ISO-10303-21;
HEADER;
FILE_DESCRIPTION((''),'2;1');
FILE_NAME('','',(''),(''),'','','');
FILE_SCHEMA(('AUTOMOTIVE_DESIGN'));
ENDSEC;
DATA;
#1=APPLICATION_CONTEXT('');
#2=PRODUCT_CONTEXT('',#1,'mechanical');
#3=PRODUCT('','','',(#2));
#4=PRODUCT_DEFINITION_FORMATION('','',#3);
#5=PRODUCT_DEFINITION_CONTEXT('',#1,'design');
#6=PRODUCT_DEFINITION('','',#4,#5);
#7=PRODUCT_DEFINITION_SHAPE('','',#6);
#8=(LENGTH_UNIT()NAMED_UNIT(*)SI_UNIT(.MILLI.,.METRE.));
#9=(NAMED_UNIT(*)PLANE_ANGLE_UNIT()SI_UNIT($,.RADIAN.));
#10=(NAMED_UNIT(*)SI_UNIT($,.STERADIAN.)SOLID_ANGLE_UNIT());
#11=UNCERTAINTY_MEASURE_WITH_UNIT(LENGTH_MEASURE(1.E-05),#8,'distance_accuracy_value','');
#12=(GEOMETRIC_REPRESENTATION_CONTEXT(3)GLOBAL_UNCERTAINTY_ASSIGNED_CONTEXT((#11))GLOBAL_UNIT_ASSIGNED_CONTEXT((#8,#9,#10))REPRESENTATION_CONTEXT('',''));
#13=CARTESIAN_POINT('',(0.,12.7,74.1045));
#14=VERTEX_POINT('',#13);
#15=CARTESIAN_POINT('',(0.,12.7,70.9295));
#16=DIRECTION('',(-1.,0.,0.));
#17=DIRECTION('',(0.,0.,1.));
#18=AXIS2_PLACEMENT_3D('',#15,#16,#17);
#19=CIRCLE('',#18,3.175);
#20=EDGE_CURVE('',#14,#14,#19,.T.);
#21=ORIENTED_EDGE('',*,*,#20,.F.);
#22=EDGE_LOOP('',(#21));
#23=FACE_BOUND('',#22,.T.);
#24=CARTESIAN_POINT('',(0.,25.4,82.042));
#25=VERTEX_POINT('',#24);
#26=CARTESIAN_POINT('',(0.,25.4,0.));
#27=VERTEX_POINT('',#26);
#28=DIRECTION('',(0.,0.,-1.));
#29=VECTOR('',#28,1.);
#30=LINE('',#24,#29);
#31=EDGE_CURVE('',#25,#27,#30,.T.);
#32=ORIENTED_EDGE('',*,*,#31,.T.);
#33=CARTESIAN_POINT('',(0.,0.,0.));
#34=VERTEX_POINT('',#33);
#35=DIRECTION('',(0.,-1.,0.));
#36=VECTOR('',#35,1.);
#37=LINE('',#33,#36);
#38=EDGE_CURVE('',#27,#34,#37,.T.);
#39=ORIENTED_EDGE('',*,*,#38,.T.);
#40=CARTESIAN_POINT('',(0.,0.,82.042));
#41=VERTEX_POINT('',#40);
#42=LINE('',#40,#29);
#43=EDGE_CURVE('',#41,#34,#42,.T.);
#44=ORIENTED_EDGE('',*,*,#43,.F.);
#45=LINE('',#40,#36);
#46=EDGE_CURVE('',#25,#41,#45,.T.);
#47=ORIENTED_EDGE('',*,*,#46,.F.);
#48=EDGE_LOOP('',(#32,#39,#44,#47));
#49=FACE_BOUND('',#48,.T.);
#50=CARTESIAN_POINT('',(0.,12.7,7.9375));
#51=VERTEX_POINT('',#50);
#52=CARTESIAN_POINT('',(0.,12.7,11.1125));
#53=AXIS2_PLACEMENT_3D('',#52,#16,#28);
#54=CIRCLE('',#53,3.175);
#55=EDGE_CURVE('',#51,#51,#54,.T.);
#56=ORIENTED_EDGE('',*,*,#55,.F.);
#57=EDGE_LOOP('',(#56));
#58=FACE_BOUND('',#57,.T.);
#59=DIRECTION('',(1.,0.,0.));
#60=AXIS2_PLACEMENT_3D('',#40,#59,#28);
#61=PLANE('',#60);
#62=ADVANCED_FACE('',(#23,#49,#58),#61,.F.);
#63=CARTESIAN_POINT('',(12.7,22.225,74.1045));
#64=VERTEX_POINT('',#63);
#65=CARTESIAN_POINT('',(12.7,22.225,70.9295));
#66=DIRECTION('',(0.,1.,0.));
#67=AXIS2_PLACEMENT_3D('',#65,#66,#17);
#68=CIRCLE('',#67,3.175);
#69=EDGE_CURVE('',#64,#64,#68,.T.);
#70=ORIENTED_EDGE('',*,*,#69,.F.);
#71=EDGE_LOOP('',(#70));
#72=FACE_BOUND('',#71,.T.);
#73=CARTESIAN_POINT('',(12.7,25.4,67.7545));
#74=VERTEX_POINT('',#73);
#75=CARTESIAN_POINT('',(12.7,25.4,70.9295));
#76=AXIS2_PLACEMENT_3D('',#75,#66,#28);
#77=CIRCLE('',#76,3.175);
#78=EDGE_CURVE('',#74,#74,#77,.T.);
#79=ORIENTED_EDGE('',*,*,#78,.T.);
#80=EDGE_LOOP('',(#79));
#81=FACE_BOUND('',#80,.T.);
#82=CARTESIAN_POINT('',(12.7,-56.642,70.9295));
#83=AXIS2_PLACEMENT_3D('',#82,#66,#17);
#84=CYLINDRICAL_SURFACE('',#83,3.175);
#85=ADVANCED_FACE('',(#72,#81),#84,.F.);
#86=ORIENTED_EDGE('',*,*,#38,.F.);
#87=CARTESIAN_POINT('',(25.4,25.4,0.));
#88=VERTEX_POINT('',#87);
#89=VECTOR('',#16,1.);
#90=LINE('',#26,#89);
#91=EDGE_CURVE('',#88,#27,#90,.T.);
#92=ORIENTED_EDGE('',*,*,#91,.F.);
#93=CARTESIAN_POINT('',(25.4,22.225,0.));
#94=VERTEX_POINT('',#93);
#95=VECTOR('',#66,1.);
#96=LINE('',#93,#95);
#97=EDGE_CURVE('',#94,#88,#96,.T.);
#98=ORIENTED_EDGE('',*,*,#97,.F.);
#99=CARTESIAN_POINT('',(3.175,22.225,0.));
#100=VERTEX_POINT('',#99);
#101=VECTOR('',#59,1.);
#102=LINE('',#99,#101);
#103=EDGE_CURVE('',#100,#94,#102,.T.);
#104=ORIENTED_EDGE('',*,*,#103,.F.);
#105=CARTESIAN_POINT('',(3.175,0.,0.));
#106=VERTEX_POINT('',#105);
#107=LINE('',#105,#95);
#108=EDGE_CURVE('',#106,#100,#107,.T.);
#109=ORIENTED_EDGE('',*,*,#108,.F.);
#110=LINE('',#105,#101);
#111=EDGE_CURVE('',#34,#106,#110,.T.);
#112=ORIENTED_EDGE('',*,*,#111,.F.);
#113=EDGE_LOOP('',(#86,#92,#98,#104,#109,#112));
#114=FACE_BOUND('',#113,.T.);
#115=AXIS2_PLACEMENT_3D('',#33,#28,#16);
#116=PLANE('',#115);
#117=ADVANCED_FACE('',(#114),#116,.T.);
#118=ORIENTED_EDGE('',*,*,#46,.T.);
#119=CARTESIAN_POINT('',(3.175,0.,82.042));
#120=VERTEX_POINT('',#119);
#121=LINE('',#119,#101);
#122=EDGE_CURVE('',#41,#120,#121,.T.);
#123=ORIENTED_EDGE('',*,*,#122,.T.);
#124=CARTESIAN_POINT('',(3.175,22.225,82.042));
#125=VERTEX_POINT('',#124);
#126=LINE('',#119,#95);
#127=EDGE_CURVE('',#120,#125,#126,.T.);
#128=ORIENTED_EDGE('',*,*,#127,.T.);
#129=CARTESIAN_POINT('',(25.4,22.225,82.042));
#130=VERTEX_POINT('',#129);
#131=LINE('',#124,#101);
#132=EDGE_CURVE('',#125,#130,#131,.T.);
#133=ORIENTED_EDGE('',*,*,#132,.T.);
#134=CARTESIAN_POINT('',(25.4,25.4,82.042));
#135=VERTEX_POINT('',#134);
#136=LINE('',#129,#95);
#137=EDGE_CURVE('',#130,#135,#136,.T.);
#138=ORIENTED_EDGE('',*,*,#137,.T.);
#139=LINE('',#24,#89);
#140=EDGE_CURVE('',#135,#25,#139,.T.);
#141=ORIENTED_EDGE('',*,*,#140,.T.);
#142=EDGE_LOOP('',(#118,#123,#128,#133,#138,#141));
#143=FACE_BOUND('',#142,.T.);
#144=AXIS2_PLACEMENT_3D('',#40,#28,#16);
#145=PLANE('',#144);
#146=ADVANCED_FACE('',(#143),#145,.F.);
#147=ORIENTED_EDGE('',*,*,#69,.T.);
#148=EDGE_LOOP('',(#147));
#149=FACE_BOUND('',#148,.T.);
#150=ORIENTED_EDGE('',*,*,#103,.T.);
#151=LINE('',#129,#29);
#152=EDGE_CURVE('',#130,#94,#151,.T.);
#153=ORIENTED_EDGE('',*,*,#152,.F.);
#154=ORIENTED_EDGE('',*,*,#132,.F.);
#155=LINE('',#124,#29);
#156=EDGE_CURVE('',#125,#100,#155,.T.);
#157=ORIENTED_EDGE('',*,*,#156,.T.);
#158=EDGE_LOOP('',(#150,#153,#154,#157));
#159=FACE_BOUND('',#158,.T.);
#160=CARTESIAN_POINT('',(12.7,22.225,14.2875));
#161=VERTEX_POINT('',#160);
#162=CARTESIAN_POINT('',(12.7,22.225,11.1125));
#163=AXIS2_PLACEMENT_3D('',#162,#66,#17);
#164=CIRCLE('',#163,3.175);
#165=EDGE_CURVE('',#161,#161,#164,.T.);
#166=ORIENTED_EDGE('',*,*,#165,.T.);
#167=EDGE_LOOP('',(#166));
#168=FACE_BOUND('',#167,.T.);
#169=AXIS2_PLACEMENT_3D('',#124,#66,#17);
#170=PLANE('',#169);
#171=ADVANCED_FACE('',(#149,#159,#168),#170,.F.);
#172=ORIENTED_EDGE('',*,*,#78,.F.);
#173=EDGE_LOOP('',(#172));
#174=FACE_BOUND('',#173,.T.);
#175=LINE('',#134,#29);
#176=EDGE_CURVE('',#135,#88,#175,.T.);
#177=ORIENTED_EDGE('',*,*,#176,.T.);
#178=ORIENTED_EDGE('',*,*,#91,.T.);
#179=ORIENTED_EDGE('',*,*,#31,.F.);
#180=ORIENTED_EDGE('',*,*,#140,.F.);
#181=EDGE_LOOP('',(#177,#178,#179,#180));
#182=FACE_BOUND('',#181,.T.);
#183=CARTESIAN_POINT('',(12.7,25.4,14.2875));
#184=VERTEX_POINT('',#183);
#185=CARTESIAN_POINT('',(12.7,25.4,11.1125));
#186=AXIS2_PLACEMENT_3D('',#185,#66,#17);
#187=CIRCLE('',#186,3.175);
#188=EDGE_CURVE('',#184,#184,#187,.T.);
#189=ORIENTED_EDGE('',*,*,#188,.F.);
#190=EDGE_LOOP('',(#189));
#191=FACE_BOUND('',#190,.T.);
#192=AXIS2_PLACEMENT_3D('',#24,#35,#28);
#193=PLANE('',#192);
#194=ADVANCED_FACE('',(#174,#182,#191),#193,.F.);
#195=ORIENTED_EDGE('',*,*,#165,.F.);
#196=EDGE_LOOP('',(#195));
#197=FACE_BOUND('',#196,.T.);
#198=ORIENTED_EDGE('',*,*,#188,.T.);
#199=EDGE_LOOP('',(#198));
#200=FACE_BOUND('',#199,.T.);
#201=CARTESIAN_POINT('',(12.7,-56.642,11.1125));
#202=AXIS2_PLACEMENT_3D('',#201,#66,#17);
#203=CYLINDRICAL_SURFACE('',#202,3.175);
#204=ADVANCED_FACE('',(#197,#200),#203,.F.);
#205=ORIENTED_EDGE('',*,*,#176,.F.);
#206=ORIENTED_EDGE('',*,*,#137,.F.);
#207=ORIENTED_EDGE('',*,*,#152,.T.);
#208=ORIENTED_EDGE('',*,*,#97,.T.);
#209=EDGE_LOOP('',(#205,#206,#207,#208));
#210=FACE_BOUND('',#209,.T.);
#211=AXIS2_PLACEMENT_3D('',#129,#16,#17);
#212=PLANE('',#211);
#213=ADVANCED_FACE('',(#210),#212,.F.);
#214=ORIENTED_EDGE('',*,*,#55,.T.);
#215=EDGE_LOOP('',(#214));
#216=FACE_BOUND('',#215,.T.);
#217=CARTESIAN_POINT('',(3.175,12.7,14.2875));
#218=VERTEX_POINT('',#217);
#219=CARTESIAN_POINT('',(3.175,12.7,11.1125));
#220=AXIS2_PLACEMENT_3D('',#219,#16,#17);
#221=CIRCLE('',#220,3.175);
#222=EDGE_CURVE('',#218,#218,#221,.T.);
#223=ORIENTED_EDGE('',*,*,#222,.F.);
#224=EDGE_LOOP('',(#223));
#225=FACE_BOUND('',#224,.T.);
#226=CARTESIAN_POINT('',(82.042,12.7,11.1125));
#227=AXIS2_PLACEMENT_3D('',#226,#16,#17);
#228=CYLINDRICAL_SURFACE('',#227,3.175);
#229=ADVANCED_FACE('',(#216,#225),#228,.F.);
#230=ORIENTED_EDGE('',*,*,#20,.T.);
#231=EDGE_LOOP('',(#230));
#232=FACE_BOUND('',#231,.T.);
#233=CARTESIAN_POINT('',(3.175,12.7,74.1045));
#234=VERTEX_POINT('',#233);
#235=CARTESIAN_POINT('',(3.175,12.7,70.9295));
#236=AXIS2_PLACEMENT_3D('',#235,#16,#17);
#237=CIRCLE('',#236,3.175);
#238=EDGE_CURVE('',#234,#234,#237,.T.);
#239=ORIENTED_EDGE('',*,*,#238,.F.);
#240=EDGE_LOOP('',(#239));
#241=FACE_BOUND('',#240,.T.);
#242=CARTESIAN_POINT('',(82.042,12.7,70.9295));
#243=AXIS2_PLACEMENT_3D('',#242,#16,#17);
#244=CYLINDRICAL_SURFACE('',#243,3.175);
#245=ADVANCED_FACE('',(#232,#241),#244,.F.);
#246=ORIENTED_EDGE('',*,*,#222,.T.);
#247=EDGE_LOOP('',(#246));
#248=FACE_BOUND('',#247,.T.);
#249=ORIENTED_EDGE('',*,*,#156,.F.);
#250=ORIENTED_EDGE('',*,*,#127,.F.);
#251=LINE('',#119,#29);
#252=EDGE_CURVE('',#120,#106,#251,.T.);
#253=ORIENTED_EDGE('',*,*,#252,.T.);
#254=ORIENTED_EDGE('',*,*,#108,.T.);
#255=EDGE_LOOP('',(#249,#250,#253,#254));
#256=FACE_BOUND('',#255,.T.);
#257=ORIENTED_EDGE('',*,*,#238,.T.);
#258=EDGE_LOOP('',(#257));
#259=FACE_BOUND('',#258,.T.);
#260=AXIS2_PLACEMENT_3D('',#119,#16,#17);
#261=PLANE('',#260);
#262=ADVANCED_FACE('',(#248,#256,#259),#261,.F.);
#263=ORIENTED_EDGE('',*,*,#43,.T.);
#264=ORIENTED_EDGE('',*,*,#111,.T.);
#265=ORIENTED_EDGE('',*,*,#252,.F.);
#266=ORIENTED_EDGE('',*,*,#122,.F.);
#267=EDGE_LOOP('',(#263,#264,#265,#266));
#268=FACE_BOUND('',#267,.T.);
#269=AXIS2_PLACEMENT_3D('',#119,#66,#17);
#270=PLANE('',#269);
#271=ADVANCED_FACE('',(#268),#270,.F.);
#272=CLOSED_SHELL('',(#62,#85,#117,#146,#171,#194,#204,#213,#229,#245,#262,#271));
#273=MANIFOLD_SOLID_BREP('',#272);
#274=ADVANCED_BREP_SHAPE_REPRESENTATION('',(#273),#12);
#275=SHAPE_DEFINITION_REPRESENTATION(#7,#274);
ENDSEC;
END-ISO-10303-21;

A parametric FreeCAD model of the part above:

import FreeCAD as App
import Part
import Sketcher
from FreeCAD import Vector
Q = App.Units.Quantity


def add_polygon(sketch, points):
    """Adds a closed chain of lines whose ends are joined by coincident constraints."""
    first, n = sketch.GeometryCount, len(points)
    for a, b in zip(points, points[1:] + points[:1]):
        sketch.addGeometry(Part.LineSegment(App.Vector(*a, 0), App.Vector(*b, 0)), False)
    for i in range(n):
        sketch.addConstraint(Sketcher.Constraint("Coincident", first + i, 2, first + (i + 1) % n, 1))

doc = App.newDocument("Part")
body = doc.addObject("PartDesign::Body", "Body")

# Sketch on XY plane
sketch1 = doc.addObject("Sketcher::SketchObject", "Sketch")
body.addObject(sketch1)
sketch1.AttachmentSupport = (doc.XY_Plane, [""])
sketch1.MapMode = "FlatFace"
add_polygon(sketch1, [(0, 25.4), (0, 0), (3.2, 0), (3.2, 22.2), (25.4, 22.2), (25.4, 25.4)])  # lines 0-5
sketch1.addConstraint([
    Sketcher.Constraint("Vertical", 0),
    Sketcher.Constraint("Horizontal", 1),
    Sketcher.Constraint("Vertical", 2),
    Sketcher.Constraint("Horizontal", 3),
    Sketcher.Constraint("Vertical", 4),
    Sketcher.Constraint("Horizontal", 5),
    Sketcher.Constraint("Coincident", 0, 2, -1, 1),
    Sketcher.Constraint("Equal", 5, 0),
    Sketcher.Constraint("Equal", 3, 2),
    Sketcher.Constraint("DistanceX", 5, 2, 5, 1, Q("1 in")),
    Sketcher.Constraint("DistanceX", 1, 1, 1, 2, Q("0.125 in")),
])
pad1 = doc.addObject("PartDesign::Pad", "Pad")
body.addObject(pad1)
pad1.Profile = sketch1
pad1.Length = Q("3.23 in")

# Sketch on YZ plane
sketch2 = doc.addObject("Sketcher::SketchObject", "Sketch001")
body.addObject(sketch2)
sketch2.AttachmentSupport = (doc.YZ_Plane, [""])
sketch2.MapMode = "FlatFace"
sketch2.addGeometry([
    Part.Circle(Vector(12.7, 70.9, 0), Vector(0, 0, 1), 3.2),
    Part.Circle(Vector(12.7, 11.1, 0), Vector(0, 0, 1), 3.2),
], False)
sketch2.addConstraint([
    Sketcher.Constraint("Equal", 0, 1),
    Sketcher.Constraint("Vertical", 0, 3, 1, 3),
    Sketcher.Constraint("Diameter", 0, Q("0.25 in")),
    Sketcher.Constraint("DistanceX", -1, 1, 0, 3, Q("0.5 in")),
    Sketcher.Constraint("DistanceY", -1, 1, 1, 3, Q("0.4375 in")),
    Sketcher.Constraint("DistanceY", 1, 3, 0, 3, Q("2.355 in")),
])
pocket1 = doc.addObject("PartDesign::Pocket", "Pocket")
body.addObject(pocket1)
pocket1.Profile = sketch2
pocket1.Length = Q("3.23 in")
pocket1.Reversed = True

# Sketch on XZ plane
sketch3 = doc.addObject("Sketcher::SketchObject", "Sketch002")
body.addObject(sketch3)
sketch3.AttachmentSupport = (doc.XZ_Plane, [""])
sketch3.MapMode = "FlatFace"
sketch3.AttachmentOffset = App.Placement(Vector(0, 0, -1 * 25.4), App.Rotation())
sketch3.addGeometry([
    Part.Circle(Vector(12.7, 11.1, 0), Vector(0, 0, 1), 3.2),
    Part.Circle(Vector(12.7, 70.9, 0), Vector(0, 0, 1), 3.2),
], False)
sketch3.addConstraint([
    Sketcher.Constraint("Equal", 0, 1),
    Sketcher.Constraint("Vertical", 0, 3, 1, 3),
    Sketcher.Constraint("Diameter", 0, Q("0.25 in")),
    Sketcher.Constraint("DistanceX", -1, 1, 0, 3, Q("0.5 in")),
    Sketcher.Constraint("DistanceY", -1, 1, 0, 3, Q("0.4375 in")),
    Sketcher.Constraint("DistanceY", 0, 3, 1, 3, Q("2.355 in")),
])
pocket2 = doc.addObject("PartDesign::Pocket", "Pocket001")
body.addObject(pocket2)
pocket2.Profile = sketch3
pocket2.Length = Q("3.23 in")
pocket2.Reversed = True

doc.recompute()
